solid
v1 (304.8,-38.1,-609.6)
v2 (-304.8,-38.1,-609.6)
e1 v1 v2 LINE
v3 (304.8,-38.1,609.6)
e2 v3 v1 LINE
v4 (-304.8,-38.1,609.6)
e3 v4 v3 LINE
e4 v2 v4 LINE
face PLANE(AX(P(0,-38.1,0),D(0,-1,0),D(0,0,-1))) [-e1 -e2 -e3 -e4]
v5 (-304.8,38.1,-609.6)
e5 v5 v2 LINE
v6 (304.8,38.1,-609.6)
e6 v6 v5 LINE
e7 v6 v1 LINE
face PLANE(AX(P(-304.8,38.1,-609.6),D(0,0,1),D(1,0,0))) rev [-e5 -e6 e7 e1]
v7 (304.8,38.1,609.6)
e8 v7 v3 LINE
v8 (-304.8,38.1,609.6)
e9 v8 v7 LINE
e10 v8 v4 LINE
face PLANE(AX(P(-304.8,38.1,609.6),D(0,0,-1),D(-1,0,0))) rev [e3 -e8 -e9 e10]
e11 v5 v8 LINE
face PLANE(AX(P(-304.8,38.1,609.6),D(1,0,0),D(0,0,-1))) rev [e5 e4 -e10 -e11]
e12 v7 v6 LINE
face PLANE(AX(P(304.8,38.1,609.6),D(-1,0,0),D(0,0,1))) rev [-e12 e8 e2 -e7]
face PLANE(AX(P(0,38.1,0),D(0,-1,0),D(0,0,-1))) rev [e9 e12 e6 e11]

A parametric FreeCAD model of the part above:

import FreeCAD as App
import Part
import Sketcher
from FreeCAD import Vector
Q = App.Units.Quantity

doc = App.newDocument("Part")
body = doc.addObject("PartDesign::Body", "Body")

# Sketch on XZ plane
sketch1 = doc.addObject("Sketcher::SketchObject", "Sketch")
body.addObject(sketch1)
sketch1.AttachmentSupport = (doc.XZ_Plane, [""])
sketch1.MapMode = "FlatFace"
sketch1.addGeometry(Part.LineSegment(Vector(-305, -610, 0), Vector(-305, 610, 0)), False)
sketch1.addGeometry(Part.LineSegment(Vector(-305, 610, 0), Vector(305, 610, 0)), False)
sketch1.addGeometry(Part.LineSegment(Vector(305, 610, 0), Vector(305, -610, 0)), False)
sketch1.addGeometry(Part.LineSegment(Vector(305, -610, 0), Vector(-305, -610, 0)), False)
sketch1.addConstraint(Sketcher.Constraint("Coincident", 0, 2, 1, 1))
sketch1.addConstraint(Sketcher.Constraint("Coincident", 1, 2, 2, 1))
sketch1.addConstraint(Sketcher.Constraint("Coincident", 2, 2, 3, 1))
sketch1.addConstraint(Sketcher.Constraint("Coincident", 3, 2, 0, 1))
sketch1.addConstraint(Sketcher.Constraint("Vertical", 0))
sketch1.addConstraint(Sketcher.Constraint("Horizontal", 1))
sketch1.addConstraint(Sketcher.Constraint("Vertical", 2))
sketch1.addConstraint(Sketcher.Constraint("Horizontal", 3))
sketch1.addConstraint(Sketcher.Constraint("Symmetric", 0, 2, 2, 2, -1, 1))
sketch1.addConstraint(Sketcher.Constraint("DistanceX", 1, 1, 1, 2, Q("24 in")))
sketch1.addConstraint(Sketcher.Constraint("DistanceY", 0, 1, 0, 2, Q("48 in")))
pad1 = doc.addObject("PartDesign::Pad", "Pad")
body.addObject(pad1)
pad1.Profile = sketch1
pad1.Length = Q("3 in")
pad1.Midplane = True

doc.recompute()
